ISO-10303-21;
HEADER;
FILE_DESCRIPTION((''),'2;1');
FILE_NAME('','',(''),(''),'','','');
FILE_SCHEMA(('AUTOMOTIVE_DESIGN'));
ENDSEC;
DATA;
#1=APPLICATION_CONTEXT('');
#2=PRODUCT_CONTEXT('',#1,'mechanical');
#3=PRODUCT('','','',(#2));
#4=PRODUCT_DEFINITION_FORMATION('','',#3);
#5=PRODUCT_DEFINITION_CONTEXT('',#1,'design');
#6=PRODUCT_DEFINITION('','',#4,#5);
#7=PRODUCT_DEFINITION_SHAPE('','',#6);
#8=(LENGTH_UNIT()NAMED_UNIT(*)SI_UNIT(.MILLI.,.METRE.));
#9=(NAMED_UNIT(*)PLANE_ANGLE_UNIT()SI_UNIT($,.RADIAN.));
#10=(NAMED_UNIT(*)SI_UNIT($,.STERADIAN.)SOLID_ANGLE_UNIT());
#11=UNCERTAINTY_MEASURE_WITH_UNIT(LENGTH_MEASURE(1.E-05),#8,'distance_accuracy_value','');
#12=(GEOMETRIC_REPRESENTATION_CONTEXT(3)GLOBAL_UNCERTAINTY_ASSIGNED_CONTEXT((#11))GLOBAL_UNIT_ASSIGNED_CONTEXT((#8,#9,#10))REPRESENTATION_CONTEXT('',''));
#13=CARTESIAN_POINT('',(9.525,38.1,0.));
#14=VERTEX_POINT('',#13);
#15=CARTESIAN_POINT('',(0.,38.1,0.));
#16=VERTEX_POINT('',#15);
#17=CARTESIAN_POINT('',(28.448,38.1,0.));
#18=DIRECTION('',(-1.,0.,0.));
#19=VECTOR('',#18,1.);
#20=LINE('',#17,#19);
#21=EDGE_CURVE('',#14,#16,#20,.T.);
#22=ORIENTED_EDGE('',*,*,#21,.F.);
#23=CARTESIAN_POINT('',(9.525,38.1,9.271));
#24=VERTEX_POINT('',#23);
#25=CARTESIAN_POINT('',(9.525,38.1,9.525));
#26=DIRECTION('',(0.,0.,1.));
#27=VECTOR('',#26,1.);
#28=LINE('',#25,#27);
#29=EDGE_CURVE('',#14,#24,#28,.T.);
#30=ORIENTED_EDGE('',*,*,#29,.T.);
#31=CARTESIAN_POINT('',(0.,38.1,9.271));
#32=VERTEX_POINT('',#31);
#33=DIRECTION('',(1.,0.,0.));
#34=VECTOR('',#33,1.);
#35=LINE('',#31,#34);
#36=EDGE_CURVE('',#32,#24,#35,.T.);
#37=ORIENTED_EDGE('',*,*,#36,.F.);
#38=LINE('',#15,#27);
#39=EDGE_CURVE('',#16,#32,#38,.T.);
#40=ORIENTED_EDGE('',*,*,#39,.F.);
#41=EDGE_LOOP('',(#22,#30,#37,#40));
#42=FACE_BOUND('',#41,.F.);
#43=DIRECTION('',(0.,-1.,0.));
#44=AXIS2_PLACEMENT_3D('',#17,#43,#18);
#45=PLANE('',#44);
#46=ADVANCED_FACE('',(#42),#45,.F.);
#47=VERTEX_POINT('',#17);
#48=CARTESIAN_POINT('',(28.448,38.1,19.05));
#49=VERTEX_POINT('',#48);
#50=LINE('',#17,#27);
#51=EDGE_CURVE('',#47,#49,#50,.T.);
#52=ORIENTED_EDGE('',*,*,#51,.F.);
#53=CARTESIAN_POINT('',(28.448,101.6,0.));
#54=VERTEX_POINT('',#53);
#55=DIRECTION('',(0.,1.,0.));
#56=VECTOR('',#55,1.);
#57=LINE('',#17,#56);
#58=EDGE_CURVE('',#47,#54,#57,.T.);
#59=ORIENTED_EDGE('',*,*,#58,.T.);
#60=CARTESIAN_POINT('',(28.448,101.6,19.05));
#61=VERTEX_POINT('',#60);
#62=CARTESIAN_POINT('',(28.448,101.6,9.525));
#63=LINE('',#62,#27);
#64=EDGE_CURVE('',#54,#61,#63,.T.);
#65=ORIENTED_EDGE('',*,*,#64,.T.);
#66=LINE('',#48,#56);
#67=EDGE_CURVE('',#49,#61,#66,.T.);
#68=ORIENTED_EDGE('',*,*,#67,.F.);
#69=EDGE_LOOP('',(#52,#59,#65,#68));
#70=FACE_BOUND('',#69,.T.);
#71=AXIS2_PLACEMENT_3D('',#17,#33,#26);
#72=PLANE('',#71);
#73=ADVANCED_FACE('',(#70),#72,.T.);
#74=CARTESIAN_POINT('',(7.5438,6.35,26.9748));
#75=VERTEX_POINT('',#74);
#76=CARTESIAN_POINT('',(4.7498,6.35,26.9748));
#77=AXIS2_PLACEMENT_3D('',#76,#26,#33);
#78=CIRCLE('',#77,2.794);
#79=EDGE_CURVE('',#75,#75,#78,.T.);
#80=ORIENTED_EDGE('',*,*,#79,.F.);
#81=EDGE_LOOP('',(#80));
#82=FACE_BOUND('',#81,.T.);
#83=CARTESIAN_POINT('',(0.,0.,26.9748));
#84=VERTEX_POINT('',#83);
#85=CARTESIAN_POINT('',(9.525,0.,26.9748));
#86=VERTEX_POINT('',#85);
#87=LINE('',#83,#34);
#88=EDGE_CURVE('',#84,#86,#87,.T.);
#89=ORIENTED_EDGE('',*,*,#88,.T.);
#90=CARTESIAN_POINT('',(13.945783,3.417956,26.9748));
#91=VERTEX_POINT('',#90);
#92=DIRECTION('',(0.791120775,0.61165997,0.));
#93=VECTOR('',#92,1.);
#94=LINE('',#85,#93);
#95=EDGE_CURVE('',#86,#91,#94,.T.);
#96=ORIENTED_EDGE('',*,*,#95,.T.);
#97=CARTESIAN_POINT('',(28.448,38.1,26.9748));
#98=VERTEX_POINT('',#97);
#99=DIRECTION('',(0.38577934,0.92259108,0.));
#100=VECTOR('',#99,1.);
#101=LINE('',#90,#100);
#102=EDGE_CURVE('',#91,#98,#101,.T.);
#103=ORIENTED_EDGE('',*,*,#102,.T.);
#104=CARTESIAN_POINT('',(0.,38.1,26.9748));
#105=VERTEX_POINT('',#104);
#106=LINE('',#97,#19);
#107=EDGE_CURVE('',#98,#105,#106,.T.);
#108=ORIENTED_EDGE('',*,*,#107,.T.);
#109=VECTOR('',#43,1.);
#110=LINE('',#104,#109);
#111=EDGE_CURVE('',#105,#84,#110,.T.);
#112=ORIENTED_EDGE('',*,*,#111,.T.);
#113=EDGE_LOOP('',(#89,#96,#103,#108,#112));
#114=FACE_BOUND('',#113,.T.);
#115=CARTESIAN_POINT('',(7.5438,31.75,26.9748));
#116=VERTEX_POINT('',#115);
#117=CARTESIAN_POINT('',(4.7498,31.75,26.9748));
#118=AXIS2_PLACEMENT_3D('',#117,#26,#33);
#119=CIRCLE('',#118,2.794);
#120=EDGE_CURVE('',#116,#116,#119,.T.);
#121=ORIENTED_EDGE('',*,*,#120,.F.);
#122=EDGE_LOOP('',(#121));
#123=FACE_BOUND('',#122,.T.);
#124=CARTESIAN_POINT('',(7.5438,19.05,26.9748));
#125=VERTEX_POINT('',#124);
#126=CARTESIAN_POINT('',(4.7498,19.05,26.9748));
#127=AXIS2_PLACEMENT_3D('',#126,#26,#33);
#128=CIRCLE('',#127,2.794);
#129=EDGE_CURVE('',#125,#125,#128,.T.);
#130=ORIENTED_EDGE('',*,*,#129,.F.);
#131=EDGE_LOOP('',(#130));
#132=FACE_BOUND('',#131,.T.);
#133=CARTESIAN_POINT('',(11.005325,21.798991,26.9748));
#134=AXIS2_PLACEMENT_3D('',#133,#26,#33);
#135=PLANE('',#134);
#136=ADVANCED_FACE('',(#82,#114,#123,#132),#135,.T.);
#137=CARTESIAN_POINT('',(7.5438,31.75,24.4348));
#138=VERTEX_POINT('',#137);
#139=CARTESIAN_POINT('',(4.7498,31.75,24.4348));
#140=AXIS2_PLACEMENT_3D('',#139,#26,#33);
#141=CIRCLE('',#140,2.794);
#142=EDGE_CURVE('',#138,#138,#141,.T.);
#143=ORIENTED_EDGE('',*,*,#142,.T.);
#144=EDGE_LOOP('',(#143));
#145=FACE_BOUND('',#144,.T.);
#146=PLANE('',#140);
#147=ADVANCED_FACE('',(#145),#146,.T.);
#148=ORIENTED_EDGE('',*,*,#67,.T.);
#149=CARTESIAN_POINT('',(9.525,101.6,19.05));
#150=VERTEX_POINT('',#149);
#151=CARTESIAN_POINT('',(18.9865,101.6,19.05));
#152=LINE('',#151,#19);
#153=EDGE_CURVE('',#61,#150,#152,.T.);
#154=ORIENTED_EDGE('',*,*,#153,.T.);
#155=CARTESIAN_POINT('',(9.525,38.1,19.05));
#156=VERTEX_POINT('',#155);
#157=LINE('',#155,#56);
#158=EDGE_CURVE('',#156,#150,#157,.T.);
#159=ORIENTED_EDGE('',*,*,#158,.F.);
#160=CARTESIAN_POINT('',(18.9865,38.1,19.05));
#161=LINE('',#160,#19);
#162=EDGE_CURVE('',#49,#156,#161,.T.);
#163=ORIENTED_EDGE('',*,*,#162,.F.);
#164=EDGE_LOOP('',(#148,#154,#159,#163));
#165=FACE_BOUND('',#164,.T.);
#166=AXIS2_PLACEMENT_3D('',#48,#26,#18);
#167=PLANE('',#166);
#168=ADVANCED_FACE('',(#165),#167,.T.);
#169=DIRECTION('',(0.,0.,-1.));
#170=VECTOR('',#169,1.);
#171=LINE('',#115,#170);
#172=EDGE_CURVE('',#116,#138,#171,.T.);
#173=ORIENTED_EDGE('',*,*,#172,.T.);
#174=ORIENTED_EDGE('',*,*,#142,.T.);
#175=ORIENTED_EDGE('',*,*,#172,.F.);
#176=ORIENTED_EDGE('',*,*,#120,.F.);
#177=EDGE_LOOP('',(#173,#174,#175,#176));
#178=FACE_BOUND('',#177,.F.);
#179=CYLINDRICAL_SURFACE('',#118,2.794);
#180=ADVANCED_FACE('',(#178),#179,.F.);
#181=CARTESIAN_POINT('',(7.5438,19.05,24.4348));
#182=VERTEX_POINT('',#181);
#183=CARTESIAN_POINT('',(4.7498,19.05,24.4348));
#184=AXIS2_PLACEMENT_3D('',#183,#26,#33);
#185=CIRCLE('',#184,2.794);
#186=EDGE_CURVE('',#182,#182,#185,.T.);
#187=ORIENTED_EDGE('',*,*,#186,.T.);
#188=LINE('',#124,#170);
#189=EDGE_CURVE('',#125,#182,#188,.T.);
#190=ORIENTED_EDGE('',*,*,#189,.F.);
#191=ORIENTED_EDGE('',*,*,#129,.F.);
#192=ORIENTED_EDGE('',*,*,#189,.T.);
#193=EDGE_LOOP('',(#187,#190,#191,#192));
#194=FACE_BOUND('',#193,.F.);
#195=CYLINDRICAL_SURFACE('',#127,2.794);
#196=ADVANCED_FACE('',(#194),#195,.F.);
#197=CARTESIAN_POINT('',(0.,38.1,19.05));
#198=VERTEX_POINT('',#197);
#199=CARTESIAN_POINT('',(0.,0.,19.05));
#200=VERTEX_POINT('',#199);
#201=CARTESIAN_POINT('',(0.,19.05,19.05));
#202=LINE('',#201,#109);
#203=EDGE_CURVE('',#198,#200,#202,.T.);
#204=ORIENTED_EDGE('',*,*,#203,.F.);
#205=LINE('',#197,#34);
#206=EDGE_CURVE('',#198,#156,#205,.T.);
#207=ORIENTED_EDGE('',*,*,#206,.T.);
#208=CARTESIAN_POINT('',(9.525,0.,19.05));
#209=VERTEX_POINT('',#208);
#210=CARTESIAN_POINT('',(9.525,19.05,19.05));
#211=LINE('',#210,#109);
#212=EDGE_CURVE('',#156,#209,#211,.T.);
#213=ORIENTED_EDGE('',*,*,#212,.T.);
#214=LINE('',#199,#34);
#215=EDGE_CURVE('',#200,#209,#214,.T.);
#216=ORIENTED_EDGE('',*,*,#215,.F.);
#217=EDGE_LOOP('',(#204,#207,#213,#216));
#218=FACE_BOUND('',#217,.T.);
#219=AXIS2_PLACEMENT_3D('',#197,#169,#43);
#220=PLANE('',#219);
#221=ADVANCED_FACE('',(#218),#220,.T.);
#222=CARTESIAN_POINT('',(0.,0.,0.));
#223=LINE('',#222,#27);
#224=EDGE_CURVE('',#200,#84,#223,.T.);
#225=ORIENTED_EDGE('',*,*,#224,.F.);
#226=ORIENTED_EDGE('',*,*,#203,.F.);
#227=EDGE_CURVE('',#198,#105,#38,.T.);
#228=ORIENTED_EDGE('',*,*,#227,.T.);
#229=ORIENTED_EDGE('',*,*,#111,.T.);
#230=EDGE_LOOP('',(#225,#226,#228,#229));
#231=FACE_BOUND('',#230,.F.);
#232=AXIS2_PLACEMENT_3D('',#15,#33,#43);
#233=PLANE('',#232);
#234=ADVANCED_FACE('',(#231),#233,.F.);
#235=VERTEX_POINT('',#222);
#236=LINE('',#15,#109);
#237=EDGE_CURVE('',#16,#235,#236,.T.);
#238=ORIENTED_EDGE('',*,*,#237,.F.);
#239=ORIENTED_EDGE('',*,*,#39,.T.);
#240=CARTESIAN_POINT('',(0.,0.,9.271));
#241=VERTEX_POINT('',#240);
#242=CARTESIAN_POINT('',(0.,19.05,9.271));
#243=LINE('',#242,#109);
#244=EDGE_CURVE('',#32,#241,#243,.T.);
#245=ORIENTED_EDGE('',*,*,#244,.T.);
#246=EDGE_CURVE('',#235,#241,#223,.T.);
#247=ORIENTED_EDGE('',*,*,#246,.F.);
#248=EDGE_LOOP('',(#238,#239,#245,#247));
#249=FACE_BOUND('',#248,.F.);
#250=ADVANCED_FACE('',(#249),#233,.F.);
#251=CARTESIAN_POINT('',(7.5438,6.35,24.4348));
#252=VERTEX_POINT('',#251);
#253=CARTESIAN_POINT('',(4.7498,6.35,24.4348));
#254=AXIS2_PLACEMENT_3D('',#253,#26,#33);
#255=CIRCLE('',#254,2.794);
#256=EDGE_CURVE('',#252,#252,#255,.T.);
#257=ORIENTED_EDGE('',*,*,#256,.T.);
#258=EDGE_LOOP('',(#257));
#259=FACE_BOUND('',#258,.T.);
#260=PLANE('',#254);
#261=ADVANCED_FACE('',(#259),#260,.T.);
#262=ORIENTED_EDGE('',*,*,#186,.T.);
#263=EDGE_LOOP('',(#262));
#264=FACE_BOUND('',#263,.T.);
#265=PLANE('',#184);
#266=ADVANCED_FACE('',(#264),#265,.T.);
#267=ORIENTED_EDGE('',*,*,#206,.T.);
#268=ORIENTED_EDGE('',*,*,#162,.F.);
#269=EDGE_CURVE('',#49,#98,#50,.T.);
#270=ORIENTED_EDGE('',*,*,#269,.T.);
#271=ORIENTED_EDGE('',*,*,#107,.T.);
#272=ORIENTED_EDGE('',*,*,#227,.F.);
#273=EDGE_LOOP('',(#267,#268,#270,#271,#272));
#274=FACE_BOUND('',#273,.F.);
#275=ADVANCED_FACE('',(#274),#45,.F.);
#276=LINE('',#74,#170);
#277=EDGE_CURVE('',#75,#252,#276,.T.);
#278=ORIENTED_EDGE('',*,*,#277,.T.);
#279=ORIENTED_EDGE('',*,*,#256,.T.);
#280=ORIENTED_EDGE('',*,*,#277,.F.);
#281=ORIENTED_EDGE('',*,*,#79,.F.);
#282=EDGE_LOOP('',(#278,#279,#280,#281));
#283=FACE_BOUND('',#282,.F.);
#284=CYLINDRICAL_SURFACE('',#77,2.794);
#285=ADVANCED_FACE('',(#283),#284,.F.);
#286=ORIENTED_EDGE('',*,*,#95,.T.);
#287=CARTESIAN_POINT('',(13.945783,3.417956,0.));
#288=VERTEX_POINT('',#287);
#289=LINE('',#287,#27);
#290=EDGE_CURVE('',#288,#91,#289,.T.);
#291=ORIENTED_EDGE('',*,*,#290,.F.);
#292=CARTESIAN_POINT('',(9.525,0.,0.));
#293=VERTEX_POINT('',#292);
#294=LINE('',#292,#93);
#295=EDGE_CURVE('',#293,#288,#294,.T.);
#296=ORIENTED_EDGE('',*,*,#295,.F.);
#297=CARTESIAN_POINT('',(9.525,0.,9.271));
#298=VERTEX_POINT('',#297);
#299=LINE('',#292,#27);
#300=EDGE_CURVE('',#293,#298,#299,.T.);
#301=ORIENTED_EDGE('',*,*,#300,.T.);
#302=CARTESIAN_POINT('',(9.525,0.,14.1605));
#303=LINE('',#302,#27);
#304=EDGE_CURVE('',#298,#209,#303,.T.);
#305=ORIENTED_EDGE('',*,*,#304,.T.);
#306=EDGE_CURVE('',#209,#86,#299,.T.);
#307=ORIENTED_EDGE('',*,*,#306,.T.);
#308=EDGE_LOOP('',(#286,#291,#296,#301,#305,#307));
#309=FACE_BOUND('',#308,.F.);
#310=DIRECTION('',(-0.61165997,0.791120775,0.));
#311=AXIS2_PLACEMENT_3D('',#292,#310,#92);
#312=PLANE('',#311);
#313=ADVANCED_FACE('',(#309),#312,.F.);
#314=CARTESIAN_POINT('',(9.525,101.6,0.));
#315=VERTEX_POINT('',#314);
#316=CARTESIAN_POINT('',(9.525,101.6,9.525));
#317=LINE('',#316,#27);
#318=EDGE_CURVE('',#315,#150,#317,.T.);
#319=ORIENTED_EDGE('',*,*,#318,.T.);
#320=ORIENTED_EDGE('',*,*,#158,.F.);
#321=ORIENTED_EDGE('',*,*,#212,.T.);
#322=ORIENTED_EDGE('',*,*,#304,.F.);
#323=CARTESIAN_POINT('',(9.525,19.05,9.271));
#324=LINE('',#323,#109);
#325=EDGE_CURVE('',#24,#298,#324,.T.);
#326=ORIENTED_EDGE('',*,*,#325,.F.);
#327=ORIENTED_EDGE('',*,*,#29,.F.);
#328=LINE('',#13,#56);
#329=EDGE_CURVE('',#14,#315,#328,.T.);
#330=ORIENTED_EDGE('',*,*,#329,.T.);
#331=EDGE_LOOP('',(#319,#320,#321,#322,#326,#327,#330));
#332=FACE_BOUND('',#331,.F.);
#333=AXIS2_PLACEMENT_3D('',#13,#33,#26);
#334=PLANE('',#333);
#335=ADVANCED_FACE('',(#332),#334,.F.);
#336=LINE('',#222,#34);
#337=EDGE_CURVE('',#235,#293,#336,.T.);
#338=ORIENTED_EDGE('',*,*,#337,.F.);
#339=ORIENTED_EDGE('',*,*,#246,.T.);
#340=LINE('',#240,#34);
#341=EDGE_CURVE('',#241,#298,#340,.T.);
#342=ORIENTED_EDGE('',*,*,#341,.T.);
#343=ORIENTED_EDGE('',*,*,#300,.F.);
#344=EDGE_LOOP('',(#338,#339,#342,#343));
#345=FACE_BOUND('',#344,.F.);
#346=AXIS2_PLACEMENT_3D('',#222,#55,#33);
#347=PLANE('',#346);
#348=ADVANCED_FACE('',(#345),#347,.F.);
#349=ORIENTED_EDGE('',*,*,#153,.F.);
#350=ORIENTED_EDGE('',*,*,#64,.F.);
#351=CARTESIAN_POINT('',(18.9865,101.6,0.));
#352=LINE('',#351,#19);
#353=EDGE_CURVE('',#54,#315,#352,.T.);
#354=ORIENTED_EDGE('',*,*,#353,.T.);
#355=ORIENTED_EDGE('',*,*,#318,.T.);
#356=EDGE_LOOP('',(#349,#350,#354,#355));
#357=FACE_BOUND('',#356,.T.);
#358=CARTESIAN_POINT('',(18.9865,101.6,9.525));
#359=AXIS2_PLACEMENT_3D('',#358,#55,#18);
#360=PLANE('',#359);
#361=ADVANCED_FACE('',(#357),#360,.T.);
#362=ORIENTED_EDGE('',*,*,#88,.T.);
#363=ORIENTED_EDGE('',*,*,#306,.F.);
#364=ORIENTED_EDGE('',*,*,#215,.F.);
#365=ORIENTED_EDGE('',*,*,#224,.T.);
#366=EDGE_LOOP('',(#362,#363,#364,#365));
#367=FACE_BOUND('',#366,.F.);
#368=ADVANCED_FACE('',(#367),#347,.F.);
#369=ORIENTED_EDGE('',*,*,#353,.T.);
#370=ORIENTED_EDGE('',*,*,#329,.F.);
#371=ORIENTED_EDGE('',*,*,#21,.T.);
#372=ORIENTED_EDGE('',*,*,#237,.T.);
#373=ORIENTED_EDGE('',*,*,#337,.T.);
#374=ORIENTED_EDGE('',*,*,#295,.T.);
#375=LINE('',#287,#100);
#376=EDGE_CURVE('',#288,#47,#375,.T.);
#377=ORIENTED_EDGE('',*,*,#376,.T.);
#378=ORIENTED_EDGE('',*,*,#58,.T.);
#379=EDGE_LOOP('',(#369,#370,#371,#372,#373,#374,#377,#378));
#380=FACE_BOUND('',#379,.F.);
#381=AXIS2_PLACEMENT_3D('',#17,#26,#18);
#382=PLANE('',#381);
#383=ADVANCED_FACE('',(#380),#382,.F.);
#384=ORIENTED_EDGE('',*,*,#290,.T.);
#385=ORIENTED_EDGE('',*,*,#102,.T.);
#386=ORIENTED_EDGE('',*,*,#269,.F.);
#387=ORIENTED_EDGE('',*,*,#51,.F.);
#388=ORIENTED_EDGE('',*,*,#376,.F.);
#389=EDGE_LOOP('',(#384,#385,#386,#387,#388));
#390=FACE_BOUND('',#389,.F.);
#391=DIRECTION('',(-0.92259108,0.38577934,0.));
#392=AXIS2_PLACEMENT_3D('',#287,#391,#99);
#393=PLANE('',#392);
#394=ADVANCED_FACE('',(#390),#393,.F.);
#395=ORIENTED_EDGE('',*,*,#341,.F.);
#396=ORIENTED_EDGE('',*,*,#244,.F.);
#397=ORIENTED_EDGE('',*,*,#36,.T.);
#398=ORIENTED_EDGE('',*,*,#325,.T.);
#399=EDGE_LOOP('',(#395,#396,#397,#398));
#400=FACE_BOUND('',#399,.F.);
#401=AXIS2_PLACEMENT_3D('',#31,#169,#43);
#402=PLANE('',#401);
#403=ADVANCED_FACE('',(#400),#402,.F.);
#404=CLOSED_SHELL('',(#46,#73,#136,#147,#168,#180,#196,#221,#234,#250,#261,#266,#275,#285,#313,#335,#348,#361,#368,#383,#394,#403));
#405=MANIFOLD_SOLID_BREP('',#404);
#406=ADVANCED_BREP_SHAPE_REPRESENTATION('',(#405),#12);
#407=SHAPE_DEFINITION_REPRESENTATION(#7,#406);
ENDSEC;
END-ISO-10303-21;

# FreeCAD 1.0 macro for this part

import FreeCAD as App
import Part
import Sketcher
Q = App.Units.Quantity


def add_polygon(sketch, points):
    """Adds a closed chain of lines whose ends are joined by coincident constraints."""
    first, n = sketch.GeometryCount, len(points)
    for a, b in zip(points, points[1:] + points[:1]):
        sketch.addGeometry(Part.LineSegment(App.Vector(*a, 0), App.Vector(*b, 0)), False)
    for i in range(n):
        sketch.addConstraint(Sketcher.Constraint("Coincident", first + i, 2, first + (i + 1) % n, 1))

doc = App.newDocument("Part")
body = doc.addObject("PartDesign::Body", "Body")

# Sketch on XY plane
sketch1 = body.newObject("Sketcher::SketchObject", "Sketch")
sketch1.AttachmentSupport = (doc.getObject("XY_Plane"), [""])
sketch1.MapMode = "FlatFace"
add_polygon(sketch1, [(0, 38.1), (0, 0), (9.525, 0), (13.945783, 3.417956), (28.448, 38.1)])  # lines 0-4
sketch1.addConstraint([
    Sketcher.Constraint("Vertical", 0),
    Sketcher.Constraint("Horizontal", 1),
    Sketcher.Constraint("Horizontal", 4),
    Sketcher.Constraint("Coincident", 0, 2, -1, 1),
    Sketcher.Constraint("DistanceY", 0, 2, 0, 1, Q("1.5 in")),
    Sketcher.Constraint("DistanceX", 4, 2, 4, 1, Q("1.12 in")),
    Sketcher.Constraint("Distance", 2, Q("0.22 in")),
    Sketcher.Constraint("Distance", 3, Q("1.48 in")),
    Sketcher.Constraint("DistanceX", 1, 1, 1, 2, Q("0.375 in")),
])
pad1 = body.newObject("PartDesign::Pad", "Pad")
pad1.Profile = sketch1
pad1.Length = Q("1.062 in")

# Sketch on YZ plane
sketch2 = body.newObject("Sketcher::SketchObject", "Sketch001")
sketch2.AttachmentSupport = (doc.getObject("YZ_Plane"), [""])
sketch2.MapMode = "FlatFace"
add_polygon(sketch2, [(38.1, 19.05), (38.1, 9.271), (0, 9.271), (0, 19.05)])  # lines 0-3
sketch2.addConstraint([
    Sketcher.Constraint("Vertical", 0),
    Sketcher.Constraint("Horizontal", 1),
    Sketcher.Constraint("Vertical", 2),
    Sketcher.Constraint("Horizontal", 3),
    Sketcher.Constraint("PointOnObject", 1, 2, -2),
    Sketcher.Constraint("DistanceX", 1, 2, 1, 1, Q("1.5 in")),
    Sketcher.Constraint("DistanceY", 0, 2, 0, 1, Q("0.385 in")),
    Sketcher.Constraint("DistanceY", -1, 1, 2, 2, Q("0.75 in")),
])
pocket1 = body.newObject("PartDesign::Pocket", "Pocket")
pocket1.Profile = sketch2
pocket1.Length = Q("0.375 in")
pocket1.Reversed = True

# Sketch on XZ plane
sketch3 = body.newObject("Sketcher::SketchObject", "Sketch002")
sketch3.AttachmentSupport = (doc.getObject("XZ_Plane"), [""])
sketch3.MapMode = "FlatFace"
sketch3.AttachmentOffset = App.Placement(App.Vector(0, 0, -1.5 * 25.4), App.Rotation())
add_polygon(sketch3, [(28.448, 19.05), (28.448, 0), (9.525, 0), (9.525, 19.05)])  # lines 0-3
sketch3.addConstraint([
    Sketcher.Constraint("Vertical", 0),
    Sketcher.Constraint("Horizontal", 1),
    Sketcher.Constraint("Vertical", 2),
    Sketcher.Constraint("Horizontal", 3),
    Sketcher.Constraint("PointOnObject", 0, 2, -1),
    Sketcher.Constraint("DistanceY", 0, 2, 0, 1, Q("0.75 in")),
    Sketcher.Constraint("DistanceX", 1, 2, 1, 1, Q("0.745 in")),
    Sketcher.Constraint("DistanceX", -1, 1, 0, 2, Q("1.12 in")),
])
pad2 = body.newObject("PartDesign::Pad", "Pad001")
pad2.Profile = sketch3
pad2.Length = Q("2.5 in")
pad2.Reversed = True

# Sketch on XY plane
sketch4 = body.newObject("Sketcher::SketchObject", "Sketch003")
sketch4.AttachmentSupport = (doc.getObject("XY_Plane"), [""])
sketch4.MapMode = "FlatFace"
sketch4.AttachmentOffset = App.Placement(App.Vector(0, 0, 1.062 * 25.4), App.Rotation())
sketch4.addGeometry([
    Part.Circle(App.Vector(4.7498, 31.75, 0), App.Vector(0, 0, 1), 2.794),
    Part.Circle(App.Vector(4.7498, 19.05, 0), App.Vector(0, 0, 1), 2.794),
    Part.Circle(App.Vector(4.7498, 6.35, 0), App.Vector(0, 0, 1), 2.794),
], False)
sketch4.addConstraint([
    Sketcher.Constraint("Equal", 0, 1),
    Sketcher.Constraint("Equal", 1, 2),
    Sketcher.Constraint("Vertical", 0, 3, 1, 3),
    Sketcher.Constraint("Vertical", 1, 3, 2, 3),
    Sketcher.Constraint("Diameter", 0, Q("0.22 in")),
    Sketcher.Constraint("DistanceY", 2, 3, 0, 3, Q("1 in")),
    Sketcher.Constraint("DistanceY", 1, 3, 0, 3, Q("0.5 in")),
    Sketcher.Constraint("DistanceY", -1, 1, 0, 3, Q("1.25 in")),
    Sketcher.Constraint("DistanceX", -1, 1, 0, 3, Q("0.187 in")),
])
pocket2 = body.newObject("PartDesign::Pocket", "Pocket001")
pocket2.Profile = sketch4
pocket2.Length = Q("0.1 in")

doc.recompute()
